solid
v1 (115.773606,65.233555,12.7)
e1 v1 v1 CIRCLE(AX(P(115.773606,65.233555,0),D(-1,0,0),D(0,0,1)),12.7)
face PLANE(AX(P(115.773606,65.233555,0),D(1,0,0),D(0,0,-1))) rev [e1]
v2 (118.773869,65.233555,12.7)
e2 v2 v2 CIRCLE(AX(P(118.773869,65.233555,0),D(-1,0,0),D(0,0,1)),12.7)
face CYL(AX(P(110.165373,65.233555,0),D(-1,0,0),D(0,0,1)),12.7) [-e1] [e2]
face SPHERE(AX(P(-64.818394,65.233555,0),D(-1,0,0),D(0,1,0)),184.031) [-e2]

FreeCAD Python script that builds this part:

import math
import FreeCAD as App
import Part
import Sketcher
Q = App.Units.Quantity

doc = App.newDocument("Part")
params = doc.addObject("Spreadsheet::Sheet", "Params")
for row, (alias, value) in enumerate([
    ("sketch1_height", "0.5 in"),
    ("revolution_angle", "360 deg"),
], start=1):
    params.set(f"A{row}", alias)
    params.set(f"B{row}", "=" + value)
    params.setAlias(f"B{row}", alias)

body = doc.addObject("PartDesign::Body", "Body")

sketch1 = body.newObject("Sketcher::SketchObject", "Sketch")
sketch1.AttachmentSupport = (doc.getObject("XY_Plane"), [""])
sketch1.MapMode = "FlatFace"
sketch1.addGeometry([
    Part.LineSegment(App.Vector(115.8, 77.9, 0), App.Vector(115.8, 65.2, 0)),
    Part.LineSegment(App.Vector(115.8, 65.2, 0), App.Vector(119.2, 65.2, 0)),
    Part.ArcOfCircle(Part.Circle(App.Vector(-64.8, 65.2, 0), App.Vector(0, 0, 1), 184), math.radians(0), math.radians(3.96)),
    Part.LineSegment(App.Vector(118.8, 77.9, 0), App.Vector(115.8, 77.9, 0)),
], False)
sketch1.addGeometry(Part.LineSegment(App.Vector(-64.8, 65.2, 0), App.Vector(119.2, 65.2, 0)), True)
sketch1.addConstraint([
    Sketcher.Constraint("Coincident", 0, 2, 1, 1),
    Sketcher.Constraint("Coincident", 1, 2, 2, 1),
    Sketcher.Constraint("Coincident", 2, 2, 3, 1),
    Sketcher.Constraint("Coincident", 3, 2, 0, 1),
    Sketcher.Constraint("Vertical", 0),
    Sketcher.Constraint("Horizontal", 1),
    Sketcher.Constraint("Horizontal", 3),
    Sketcher.Constraint("Horizontal", 4),
    Sketcher.Constraint("Coincident", 4, 1, 2, 3),
    Sketcher.Constraint("Coincident", 4, 2, 1, 2),
    Sketcher.Constraint("DistanceY", 0, 2, 0, 1, Q("0.5 in")),
    Sketcher.Constraint("Radius", 2, Q("184.030999 mm")),
    Sketcher.Constraint("DistanceX", 1, 1, 1, 2, Q("3.439 mm")),
    Sketcher.Constraint("DistanceX", -1, 1, 2, 2, Q("118.773869 mm")),
    Sketcher.Constraint("DistanceY", -1, 1, 2, 3, Q("65.233555 mm")),
])
sketch1.setExpression("Constraints[10]", "Params.sketch1_height")
revolution = body.newObject("PartDesign::Revolution", "Revolution")
revolution.Profile = sketch1
revolution.ReferenceAxis = (sketch1, ["Axis0"])
revolution.setExpression("Angle", "Params.revolution_angle")

doc.recompute()
